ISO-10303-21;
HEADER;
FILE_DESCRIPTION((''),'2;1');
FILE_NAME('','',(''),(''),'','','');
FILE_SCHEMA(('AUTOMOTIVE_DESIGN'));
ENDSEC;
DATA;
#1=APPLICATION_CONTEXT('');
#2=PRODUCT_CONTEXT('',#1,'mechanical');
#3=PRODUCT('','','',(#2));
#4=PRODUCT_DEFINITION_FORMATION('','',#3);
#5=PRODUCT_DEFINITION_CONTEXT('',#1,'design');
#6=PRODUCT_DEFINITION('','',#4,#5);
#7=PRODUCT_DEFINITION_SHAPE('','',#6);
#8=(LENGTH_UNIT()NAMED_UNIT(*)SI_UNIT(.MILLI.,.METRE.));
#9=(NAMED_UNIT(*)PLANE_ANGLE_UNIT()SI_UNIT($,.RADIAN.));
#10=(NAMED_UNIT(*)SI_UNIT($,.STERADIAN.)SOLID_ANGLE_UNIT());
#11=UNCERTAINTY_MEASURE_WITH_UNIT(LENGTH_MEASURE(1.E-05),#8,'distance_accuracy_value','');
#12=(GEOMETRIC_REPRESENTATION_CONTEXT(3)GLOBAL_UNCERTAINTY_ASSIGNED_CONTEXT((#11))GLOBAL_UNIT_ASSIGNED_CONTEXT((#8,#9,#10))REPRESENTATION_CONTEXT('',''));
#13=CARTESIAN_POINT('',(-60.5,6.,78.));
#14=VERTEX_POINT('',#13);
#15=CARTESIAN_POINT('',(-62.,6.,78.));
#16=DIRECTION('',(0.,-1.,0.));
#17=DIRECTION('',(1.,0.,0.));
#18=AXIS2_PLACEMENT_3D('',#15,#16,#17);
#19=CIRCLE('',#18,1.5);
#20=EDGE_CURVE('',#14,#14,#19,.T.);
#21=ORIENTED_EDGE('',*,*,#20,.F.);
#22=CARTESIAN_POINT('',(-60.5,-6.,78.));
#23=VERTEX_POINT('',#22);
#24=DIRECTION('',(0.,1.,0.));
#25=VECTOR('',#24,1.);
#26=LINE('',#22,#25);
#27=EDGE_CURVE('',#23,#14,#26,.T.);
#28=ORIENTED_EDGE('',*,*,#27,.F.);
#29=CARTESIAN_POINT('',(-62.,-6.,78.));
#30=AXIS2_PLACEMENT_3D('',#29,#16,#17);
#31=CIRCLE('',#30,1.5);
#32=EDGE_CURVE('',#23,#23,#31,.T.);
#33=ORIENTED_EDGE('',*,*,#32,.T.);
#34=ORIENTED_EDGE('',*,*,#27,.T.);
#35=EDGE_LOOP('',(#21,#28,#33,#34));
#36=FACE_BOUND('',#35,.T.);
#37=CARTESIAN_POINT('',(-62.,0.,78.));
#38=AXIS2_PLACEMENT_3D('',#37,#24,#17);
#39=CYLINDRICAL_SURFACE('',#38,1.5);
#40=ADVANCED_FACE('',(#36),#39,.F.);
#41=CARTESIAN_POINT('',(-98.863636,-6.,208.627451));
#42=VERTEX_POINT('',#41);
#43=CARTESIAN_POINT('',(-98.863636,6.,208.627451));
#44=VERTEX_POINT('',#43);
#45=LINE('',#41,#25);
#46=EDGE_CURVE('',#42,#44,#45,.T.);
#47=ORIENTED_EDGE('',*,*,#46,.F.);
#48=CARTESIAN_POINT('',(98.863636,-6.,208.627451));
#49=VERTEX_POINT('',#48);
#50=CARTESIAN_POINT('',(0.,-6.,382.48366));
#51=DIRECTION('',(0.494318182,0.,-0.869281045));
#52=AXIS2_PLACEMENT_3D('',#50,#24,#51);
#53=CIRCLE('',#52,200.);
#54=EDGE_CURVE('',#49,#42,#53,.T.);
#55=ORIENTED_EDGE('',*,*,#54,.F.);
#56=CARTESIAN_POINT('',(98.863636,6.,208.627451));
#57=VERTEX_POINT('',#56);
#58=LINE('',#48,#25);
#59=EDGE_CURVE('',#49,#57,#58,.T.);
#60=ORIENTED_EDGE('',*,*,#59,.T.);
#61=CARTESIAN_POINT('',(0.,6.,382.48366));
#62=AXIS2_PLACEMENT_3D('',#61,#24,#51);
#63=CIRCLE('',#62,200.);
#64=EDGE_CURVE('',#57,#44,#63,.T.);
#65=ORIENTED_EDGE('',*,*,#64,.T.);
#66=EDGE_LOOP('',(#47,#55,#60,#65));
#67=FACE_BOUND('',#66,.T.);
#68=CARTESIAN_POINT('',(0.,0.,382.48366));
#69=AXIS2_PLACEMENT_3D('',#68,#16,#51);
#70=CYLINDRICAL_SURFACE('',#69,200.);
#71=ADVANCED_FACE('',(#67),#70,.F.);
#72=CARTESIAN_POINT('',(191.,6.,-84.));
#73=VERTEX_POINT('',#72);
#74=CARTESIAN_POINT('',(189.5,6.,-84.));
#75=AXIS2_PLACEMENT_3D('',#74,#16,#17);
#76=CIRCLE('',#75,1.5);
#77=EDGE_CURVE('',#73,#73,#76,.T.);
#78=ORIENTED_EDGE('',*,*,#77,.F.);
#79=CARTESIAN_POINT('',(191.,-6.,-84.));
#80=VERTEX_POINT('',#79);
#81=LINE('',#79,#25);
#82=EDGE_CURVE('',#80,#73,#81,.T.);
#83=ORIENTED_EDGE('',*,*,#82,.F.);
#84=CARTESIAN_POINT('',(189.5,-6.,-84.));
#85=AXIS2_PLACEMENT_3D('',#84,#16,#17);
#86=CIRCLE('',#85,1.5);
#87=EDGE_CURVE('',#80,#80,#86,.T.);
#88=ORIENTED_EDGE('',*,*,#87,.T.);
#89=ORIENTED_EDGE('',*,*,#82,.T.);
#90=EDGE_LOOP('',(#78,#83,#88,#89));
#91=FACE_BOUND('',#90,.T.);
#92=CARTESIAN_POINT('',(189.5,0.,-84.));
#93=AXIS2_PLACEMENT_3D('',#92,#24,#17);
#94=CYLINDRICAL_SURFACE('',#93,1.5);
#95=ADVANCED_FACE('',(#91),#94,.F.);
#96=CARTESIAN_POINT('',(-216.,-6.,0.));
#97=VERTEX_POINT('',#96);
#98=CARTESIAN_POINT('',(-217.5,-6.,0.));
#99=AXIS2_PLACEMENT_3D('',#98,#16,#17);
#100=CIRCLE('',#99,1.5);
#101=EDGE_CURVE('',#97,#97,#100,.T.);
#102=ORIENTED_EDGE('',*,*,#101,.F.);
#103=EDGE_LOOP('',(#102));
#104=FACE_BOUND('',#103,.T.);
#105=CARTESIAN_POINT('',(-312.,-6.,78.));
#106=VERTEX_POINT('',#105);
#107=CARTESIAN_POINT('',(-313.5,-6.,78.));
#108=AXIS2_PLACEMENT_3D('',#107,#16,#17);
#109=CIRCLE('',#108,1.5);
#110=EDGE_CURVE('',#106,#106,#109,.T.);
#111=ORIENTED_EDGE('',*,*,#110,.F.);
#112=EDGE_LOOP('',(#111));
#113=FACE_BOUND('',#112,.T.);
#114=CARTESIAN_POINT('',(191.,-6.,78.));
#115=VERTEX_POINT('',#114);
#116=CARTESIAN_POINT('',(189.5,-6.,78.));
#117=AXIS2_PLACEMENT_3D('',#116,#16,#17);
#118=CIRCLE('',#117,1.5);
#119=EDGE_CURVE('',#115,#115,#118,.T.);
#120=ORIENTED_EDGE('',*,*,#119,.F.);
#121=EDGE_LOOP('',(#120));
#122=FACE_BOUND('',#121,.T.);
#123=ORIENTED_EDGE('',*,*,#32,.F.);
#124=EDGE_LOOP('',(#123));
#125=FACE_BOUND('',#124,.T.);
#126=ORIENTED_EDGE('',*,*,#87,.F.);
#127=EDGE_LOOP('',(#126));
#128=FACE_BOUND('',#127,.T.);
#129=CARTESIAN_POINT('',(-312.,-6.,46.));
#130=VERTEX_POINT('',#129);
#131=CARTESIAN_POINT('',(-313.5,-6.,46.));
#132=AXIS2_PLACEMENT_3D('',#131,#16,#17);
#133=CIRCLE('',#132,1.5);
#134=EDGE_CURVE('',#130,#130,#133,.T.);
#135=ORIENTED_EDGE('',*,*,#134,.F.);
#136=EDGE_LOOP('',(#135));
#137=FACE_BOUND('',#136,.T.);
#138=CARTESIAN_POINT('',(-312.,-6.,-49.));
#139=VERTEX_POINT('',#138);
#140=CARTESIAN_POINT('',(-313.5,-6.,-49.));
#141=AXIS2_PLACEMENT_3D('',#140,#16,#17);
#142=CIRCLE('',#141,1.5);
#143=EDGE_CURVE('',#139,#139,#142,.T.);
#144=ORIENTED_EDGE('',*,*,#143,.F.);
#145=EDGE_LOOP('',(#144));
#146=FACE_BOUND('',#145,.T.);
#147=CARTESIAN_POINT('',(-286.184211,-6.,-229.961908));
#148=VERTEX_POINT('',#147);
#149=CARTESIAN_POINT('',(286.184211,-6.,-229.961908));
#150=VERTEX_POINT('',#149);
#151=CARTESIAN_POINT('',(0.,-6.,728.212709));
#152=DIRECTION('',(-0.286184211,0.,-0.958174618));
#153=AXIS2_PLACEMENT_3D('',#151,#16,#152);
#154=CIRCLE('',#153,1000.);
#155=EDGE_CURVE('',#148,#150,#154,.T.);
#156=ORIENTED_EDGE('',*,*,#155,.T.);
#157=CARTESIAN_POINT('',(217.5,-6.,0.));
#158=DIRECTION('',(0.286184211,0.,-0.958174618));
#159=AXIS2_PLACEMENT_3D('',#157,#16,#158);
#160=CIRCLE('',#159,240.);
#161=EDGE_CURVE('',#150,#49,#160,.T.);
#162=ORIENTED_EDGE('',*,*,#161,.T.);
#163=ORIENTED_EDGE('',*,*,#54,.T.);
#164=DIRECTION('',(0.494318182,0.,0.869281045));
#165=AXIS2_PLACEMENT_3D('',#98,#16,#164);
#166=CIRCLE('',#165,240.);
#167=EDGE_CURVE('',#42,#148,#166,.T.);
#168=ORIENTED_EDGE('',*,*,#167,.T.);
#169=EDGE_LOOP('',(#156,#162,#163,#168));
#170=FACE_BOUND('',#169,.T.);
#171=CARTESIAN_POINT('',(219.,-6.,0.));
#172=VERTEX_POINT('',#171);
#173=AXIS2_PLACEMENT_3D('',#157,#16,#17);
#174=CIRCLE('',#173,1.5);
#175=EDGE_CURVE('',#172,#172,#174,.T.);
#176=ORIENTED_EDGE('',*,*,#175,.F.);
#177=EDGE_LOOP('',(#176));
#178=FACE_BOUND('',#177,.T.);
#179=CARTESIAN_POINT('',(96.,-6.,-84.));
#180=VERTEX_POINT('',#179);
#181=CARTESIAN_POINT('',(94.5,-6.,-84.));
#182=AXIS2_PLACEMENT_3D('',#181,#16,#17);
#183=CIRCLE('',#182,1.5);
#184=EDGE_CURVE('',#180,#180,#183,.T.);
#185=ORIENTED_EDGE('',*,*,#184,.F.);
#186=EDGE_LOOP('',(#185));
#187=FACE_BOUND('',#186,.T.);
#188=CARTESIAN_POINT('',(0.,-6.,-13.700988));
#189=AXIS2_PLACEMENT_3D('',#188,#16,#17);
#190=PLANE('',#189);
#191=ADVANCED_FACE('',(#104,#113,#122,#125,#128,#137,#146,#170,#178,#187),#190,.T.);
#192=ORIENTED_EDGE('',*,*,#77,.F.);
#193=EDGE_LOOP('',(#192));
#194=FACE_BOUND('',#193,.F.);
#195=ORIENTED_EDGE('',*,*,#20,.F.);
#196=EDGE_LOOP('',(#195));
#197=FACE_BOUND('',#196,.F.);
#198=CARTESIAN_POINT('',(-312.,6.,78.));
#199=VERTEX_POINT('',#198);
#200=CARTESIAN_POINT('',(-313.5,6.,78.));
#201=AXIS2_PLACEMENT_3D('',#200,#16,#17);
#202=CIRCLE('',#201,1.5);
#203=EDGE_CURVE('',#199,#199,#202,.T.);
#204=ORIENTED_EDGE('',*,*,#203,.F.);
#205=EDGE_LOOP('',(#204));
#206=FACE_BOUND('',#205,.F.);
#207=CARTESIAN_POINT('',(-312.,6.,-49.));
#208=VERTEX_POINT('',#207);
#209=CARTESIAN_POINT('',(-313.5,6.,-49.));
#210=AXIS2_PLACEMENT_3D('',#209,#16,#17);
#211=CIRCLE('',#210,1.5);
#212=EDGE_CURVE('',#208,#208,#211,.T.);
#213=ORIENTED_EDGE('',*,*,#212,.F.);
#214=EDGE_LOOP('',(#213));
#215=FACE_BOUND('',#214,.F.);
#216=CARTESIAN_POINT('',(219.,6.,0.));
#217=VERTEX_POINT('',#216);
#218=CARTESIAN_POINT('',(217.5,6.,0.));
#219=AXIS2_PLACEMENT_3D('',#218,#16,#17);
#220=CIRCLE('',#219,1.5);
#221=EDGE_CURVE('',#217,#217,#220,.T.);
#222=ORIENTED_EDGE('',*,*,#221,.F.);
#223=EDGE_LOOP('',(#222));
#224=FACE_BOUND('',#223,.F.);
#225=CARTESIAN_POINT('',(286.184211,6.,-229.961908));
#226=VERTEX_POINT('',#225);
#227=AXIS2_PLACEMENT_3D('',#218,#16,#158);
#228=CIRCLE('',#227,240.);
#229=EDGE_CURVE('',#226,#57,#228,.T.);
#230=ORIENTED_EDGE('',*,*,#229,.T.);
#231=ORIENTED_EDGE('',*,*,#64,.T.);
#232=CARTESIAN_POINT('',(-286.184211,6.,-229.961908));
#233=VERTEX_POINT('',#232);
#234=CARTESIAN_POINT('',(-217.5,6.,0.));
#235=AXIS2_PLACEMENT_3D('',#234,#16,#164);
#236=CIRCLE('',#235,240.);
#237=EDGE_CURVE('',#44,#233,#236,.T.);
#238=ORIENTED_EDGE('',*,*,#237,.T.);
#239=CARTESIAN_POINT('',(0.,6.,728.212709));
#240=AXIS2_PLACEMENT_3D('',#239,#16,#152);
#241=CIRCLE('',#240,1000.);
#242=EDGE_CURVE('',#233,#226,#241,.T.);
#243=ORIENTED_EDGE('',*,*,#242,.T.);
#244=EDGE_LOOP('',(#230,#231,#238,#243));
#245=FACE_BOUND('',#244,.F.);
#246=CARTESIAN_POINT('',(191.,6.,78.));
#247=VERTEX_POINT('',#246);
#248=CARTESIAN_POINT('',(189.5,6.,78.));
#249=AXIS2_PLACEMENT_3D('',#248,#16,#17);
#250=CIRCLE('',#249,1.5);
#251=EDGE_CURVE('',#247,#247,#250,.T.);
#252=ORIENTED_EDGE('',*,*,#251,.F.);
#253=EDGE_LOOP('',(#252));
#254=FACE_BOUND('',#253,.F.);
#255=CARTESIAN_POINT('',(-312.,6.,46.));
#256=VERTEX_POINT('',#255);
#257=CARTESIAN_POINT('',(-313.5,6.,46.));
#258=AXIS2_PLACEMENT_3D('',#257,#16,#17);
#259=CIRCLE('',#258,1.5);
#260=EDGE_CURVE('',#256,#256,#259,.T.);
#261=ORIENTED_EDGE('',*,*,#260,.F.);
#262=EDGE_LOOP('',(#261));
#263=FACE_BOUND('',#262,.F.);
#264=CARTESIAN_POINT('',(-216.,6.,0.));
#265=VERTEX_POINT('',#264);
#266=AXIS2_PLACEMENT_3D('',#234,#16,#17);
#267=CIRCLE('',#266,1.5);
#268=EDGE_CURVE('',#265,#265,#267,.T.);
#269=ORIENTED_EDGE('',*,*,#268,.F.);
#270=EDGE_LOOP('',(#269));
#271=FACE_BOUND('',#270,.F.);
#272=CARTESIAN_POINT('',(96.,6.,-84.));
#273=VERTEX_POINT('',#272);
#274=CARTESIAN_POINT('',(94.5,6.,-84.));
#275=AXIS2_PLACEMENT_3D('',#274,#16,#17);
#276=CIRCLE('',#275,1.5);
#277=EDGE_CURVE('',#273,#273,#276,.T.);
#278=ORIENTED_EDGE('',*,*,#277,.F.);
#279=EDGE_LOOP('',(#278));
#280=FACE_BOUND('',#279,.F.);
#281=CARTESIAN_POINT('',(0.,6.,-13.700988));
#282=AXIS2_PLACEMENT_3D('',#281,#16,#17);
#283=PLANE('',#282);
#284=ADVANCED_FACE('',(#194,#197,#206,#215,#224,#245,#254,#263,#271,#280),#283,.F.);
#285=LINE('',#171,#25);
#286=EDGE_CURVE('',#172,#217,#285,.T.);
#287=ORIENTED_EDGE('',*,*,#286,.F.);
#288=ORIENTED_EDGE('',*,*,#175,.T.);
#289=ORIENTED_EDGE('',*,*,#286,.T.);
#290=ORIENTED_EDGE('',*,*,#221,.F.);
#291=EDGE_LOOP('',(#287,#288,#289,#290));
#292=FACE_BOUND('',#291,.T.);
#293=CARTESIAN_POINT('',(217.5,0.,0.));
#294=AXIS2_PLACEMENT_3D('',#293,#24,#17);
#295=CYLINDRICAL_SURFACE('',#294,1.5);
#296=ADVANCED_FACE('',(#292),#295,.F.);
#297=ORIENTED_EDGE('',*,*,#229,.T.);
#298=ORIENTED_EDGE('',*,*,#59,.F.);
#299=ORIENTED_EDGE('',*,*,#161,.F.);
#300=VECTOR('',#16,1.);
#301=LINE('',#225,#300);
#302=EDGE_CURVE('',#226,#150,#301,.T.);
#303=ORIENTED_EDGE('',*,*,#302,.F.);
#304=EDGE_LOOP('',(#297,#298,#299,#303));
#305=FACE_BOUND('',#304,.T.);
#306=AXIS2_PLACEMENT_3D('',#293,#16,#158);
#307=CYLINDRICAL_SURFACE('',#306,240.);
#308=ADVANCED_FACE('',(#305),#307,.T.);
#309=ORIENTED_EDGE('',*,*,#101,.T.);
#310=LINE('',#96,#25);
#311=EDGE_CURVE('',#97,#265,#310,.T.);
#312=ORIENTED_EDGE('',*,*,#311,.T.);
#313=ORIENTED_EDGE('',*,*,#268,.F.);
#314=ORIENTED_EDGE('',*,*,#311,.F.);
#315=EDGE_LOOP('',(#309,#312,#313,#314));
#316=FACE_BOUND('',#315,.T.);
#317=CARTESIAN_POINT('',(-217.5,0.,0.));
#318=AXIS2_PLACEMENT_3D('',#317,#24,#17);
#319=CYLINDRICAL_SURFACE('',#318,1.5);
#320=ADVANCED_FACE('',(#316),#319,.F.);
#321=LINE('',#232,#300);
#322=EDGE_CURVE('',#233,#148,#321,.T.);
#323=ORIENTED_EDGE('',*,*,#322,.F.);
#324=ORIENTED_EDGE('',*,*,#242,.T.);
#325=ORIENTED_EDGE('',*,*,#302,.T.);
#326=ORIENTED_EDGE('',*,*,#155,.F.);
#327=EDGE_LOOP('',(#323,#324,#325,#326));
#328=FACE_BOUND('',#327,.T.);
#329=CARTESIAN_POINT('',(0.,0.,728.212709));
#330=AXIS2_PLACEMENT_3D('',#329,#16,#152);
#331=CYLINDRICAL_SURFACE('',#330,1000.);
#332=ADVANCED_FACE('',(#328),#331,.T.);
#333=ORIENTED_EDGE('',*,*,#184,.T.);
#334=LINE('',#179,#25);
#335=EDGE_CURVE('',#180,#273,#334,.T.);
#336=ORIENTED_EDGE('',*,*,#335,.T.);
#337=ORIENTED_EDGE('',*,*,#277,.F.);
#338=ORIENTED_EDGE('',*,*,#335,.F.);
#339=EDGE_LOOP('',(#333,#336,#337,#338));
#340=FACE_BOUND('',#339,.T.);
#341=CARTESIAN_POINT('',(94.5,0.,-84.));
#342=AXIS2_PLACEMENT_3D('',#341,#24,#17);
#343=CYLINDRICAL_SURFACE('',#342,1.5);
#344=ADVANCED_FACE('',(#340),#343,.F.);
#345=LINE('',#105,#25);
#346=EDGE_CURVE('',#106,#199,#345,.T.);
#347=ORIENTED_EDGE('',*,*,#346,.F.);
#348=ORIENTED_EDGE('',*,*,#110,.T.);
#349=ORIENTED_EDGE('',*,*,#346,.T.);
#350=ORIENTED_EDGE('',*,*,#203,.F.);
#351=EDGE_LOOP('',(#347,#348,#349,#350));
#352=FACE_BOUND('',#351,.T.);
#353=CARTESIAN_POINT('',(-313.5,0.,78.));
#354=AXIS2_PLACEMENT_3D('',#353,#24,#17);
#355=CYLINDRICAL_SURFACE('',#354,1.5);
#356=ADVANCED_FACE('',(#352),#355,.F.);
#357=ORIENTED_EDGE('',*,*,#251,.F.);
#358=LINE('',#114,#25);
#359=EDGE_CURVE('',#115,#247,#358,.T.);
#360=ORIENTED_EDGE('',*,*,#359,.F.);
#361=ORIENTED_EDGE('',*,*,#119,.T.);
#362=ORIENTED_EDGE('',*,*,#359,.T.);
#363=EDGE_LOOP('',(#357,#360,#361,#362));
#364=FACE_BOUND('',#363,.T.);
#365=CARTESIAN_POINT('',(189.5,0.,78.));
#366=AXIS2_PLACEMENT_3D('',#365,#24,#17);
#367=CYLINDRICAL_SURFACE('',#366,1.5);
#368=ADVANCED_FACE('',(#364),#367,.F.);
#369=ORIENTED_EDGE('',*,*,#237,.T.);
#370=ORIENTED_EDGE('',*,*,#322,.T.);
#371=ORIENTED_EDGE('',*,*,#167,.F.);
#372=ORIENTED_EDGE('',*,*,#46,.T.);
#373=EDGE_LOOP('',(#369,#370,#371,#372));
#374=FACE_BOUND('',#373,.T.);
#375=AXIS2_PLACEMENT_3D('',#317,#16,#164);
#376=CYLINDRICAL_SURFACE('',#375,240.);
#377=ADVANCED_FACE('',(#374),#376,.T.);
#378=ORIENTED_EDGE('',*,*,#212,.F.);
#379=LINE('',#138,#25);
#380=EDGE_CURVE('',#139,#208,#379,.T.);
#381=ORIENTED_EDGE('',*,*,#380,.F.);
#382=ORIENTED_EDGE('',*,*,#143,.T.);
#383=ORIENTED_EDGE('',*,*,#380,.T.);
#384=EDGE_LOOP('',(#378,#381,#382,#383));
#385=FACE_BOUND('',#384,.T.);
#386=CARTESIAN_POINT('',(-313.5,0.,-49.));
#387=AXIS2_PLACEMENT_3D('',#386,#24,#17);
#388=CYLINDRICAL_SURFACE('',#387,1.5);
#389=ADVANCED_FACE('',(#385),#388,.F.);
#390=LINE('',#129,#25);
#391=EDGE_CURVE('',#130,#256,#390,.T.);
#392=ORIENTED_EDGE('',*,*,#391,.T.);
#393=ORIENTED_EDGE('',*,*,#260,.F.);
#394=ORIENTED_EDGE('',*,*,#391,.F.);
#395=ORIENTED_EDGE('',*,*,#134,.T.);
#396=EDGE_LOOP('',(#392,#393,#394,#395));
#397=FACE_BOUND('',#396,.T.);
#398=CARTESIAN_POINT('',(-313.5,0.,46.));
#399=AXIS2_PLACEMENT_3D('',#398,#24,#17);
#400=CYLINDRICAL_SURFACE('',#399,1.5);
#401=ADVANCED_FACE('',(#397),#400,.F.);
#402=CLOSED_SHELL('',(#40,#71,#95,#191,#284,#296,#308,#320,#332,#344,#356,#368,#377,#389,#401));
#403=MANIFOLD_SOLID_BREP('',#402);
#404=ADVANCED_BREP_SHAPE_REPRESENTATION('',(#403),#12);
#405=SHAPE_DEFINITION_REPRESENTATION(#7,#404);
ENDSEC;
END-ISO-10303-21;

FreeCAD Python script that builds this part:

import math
import FreeCAD as App
import Part
import Sketcher
from FreeCAD import Vector

doc = App.newDocument("Part")
body = doc.addObject("PartDesign::Body", "Body")

sketch1 = body.newObject("Sketcher::SketchObject", "Sketch")
sketch1.AttachmentSupport = (doc.getObject("XZ_Plane"), [""])
sketch1.MapMode = "FlatFace"
sketch1.addGeometry([
    Part.ArcOfCircle(Part.Circle(Vector(-217.5, 0, 0), Vector(0, 0, 1), 240), math.radians(60.375199), math.radians(253.370352)),
    Part.ArcOfCircle(Part.Circle(Vector(0, 728.212709, 0), Vector(0, 0, 1), 1000), math.radians(-106.629648), math.radians(-73.370352)),
    Part.ArcOfCircle(Part.Circle(Vector(217.5, 0, 0), Vector(0, 0, 1), 240), math.radians(-73.370352), math.radians(119.624801)),
    Part.ArcOfCircle(Part.Circle(Vector(0, 382.48366, 0), Vector(0, 0, 1), 200), math.radians(-119.624801), math.radians(-60.375199)),
    Part.Circle(Vector(-313.5, -49, 0), Vector(0, 0, 1), 1.5),
    Part.Circle(Vector(94.5, -84, 0), Vector(0, 0, 1), 1.5),
    Part.Circle(Vector(189.5, -84, 0), Vector(0, 0, 1), 1.5),
    Part.Circle(Vector(-217.5, 0, 0), Vector(0, 0, 1), 1.5),
    Part.Circle(Vector(-313.5, 46, 0), Vector(0, 0, 1), 1.5),
    Part.Circle(Vector(-313.5, 78, 0), Vector(0, 0, 1), 1.5),
    Part.Circle(Vector(-62, 78, 0), Vector(0, 0, 1), 1.5),
    Part.Circle(Vector(217.5, 0, 0), Vector(0, 0, 1), 1.5),
    Part.Circle(Vector(189.5, 78, 0), Vector(0, 0, 1), 1.5),
], False)
sketch1.addConstraint([
    Sketcher.Constraint("Tangent", 0, 2, 1, 1),
    Sketcher.Constraint("Tangent", 1, 2, 2, 1),
    Sketcher.Constraint("Tangent", 2, 2, 3, 2),
    Sketcher.Constraint("Tangent", 3, 1, 0, 1),
    Sketcher.Constraint("Coincident", 7, 3, 0, 3),
    Sketcher.Constraint("Coincident", 11, 3, 2, 3),
    Sketcher.Constraint("Equal", 0, 2),
    Sketcher.Constraint("Equal", 4, 5),
    Sketcher.Constraint("Equal", 5, 6),
    Sketcher.Constraint("Equal", 6, 7),
    Sketcher.Constraint("Equal", 7, 8),
    Sketcher.Constraint("Equal", 8, 9),
    Sketcher.Constraint("Equal", 9, 10),
    Sketcher.Constraint("Equal", 10, 11),
    Sketcher.Constraint("Equal", 11, 12),
    Sketcher.Constraint("Symmetric", 0, 3, 2, 3, -1, 1),
    Sketcher.Constraint("PointOnObject", 0, 3, -1),
    Sketcher.Constraint("Horizontal", 5, 3, 6, 3),
    Sketcher.Constraint("Horizontal", 9, 3, 10, 3),
    Sketcher.Constraint("Horizontal", 10, 3, 12, 3),
    Sketcher.Constraint("Vertical", 4, 3, 8, 3),
    Sketcher.Constraint("Vertical", 8, 3, 9, 3),
    Sketcher.Constraint("Vertical", 6, 3, 12, 3),
    Sketcher.Constraint("Diameter", 4, 3.0),
    Sketcher.Constraint("Radius", 0, 240.0),
    Sketcher.Constraint("Radius", 1, 1000.0),
    Sketcher.Constraint("Radius", 3, 200.0),
    Sketcher.Constraint("DistanceY", 4, 3, -1, 1, 49.0),
    Sketcher.Constraint("DistanceY", 5, 3, -1, 1, 84.0),
    Sketcher.Constraint("DistanceY", -1, 1, 8, 3, 46.0),
    Sketcher.Constraint("DistanceY", -1, 1, 9, 3, 78.0),
    Sketcher.Constraint("DistanceX", 10, 3, -1, 1, 62.0),
    Sketcher.Constraint("DistanceX", 0, 3, 2, 3, 435.0),
    Sketcher.Constraint("DistanceX", 4, 3, 0, 3, 96.0),
    Sketcher.Constraint("DistanceX", 5, 3, 2, 3, 123.0),
    Sketcher.Constraint("DistanceX", 6, 3, 2, 3, 28.0),
])
pad1 = body.newObject("PartDesign::Pad", "Pad")
pad1.Profile = sketch1
pad1.Length = 12
pad1.Midplane = True

doc.recompute()
